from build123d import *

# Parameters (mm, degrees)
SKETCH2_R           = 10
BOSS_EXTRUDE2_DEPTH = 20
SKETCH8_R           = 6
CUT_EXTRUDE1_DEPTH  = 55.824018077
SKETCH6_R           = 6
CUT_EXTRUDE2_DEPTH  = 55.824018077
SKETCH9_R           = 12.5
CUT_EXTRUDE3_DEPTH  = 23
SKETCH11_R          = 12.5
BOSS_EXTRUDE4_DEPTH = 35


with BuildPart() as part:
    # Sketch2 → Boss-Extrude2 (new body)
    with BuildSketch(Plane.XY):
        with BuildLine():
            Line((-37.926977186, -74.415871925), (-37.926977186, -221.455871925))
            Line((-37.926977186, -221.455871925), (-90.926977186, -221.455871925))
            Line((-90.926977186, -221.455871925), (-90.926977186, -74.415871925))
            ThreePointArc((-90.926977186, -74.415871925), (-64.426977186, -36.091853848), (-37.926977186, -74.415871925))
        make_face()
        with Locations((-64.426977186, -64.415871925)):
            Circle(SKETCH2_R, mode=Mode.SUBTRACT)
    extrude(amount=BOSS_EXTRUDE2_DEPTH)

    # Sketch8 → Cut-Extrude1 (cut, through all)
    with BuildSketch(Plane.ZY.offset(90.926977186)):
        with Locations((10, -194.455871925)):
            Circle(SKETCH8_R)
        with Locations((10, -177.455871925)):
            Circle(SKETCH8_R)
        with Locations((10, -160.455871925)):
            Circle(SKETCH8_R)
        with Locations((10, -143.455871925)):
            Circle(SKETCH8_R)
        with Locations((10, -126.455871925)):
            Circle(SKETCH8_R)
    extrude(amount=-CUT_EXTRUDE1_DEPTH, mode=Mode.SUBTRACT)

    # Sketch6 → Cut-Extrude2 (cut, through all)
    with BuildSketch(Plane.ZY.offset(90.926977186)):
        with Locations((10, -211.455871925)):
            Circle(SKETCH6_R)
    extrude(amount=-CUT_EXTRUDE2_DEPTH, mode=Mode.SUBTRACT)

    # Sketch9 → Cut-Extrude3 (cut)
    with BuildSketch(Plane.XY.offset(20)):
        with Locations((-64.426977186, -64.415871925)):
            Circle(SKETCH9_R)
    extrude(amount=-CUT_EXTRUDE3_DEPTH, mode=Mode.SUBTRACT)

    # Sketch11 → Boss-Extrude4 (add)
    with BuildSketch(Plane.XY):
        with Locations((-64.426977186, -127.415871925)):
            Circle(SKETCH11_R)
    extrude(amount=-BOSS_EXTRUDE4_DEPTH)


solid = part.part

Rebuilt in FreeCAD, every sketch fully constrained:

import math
import FreeCAD as App
import Part
import Sketcher
from FreeCAD import Vector
Q = App.Units.Quantity

doc = App.newDocument("Part")
body = doc.addObject("PartDesign::Body", "Body")

sketch1 = body.newObject("Sketcher::SketchObject", "Sketch")
sketch1.AttachmentSupport = (doc.getObject("XY_Plane"), [""])
sketch1.MapMode = "FlatFace"
sketch1.addGeometry([
    Part.LineSegment(Vector(-37.926977, -221.455872, 0), Vector(-37.926977, -74.415872, 0)),
    Part.ArcOfCircle(Part.Circle(Vector(-64.426977, -64.415872, 0), Vector(0, 0, 1), 28.324018), math.radians(-20.674425), math.radians(200.674425)),
    Part.LineSegment(Vector(-90.926977, -74.415872, 0), Vector(-90.926977, -221.455872, 0)),
    Part.LineSegment(Vector(-90.926977, -221.455872, 0), Vector(-37.926977, -221.455872, 0)),
    Part.Circle(Vector(-64.426977, -64.415872, 0), Vector(0, 0, 1), 10),
], False)
sketch1.addConstraint([
    Sketcher.Constraint("Coincident", 0, 2, 1, 1),
    Sketcher.Constraint("Coincident", 1, 2, 2, 1),
    Sketcher.Constraint("Coincident", 2, 2, 3, 1),
    Sketcher.Constraint("Coincident", 3, 2, 0, 1),
    Sketcher.Constraint("Vertical", 0),
    Sketcher.Constraint("Vertical", 2),
    Sketcher.Constraint("Horizontal", 3),
    Sketcher.Constraint("Coincident", 4, 3, 1, 3),
    Sketcher.Constraint("Horizontal", 0, 2, 1, 2),
    Sketcher.Constraint("Diameter", 4, Q("20 mm")),
    Sketcher.Constraint("DistanceX", 3, 1, 3, 2, Q("53 mm")),
    Sketcher.Constraint("DistanceY", 0, 2, 1, 3, Q("10 mm")),
    Sketcher.Constraint("DistanceY", 0, 1, 0, 2, Q("147.04 mm")),
    Sketcher.Constraint("DistanceY", 1, 3, -1, 1, Q("64.415872 mm")),
    Sketcher.Constraint("DistanceX", 1, 3, -1, 1, Q("64.426977 mm")),
])
pad1 = body.newObject("PartDesign::Pad", "Pad")
pad1.Profile = sketch1
pad1.Length = 20

sketch2 = body.newObject("Sketcher::SketchObject", "Sketch001")
sketch2.AttachmentSupport = (doc.getObject("YZ_Plane"), [""])
sketch2.MapMode = "FlatFace"
sketch2.AttachmentOffset = App.Placement(Vector(0, 0, -90.926977), App.Rotation())
sketch2.addGeometry([
    Part.Circle(Vector(-194.455872, 10, 0), Vector(0, 0, 1), 6),
    Part.Circle(Vector(-177.455872, 10, 0), Vector(0, 0, 1), 6),
    Part.Circle(Vector(-160.455872, 10, 0), Vector(0, 0, 1), 6),
    Part.Circle(Vector(-143.455872, 10, 0), Vector(0, 0, 1), 6),
    Part.Circle(Vector(-126.455872, 10, 0), Vector(0, 0, 1), 6),
], False)
sketch2.addConstraint([
    Sketcher.Constraint("Equal", 0, 1),
    Sketcher.Constraint("Equal", 1, 2),
    Sketcher.Constraint("Equal", 2, 3),
    Sketcher.Constraint("Equal", 3, 4),
    Sketcher.Constraint("Horizontal", 0, 3, 1, 3),
    Sketcher.Constraint("Horizontal", 1, 3, 2, 3),
    Sketcher.Constraint("Horizontal", 2, 3, 3, 3),
    Sketcher.Constraint("Horizontal", 3, 3, 4, 3),
    Sketcher.Constraint("Diameter", 0, Q("12 mm")),
    Sketcher.Constraint("DistanceY", -1, 1, 0, 3, Q("10 mm")),
    Sketcher.Constraint("DistanceX", 0, 3, 1, 3, Q("17 mm")),
    Sketcher.Constraint("DistanceX", 1, 3, 2, 3, Q("17 mm")),
    Sketcher.Constraint("DistanceX", 2, 3, 3, 3, Q("17 mm")),
    Sketcher.Constraint("DistanceX", 3, 3, 4, 3, Q("17 mm")),
    Sketcher.Constraint("DistanceX", 0, 3, -1, 1, Q("194.455872 mm")),
])
pocket1 = body.newObject("PartDesign::Pocket", "Pocket")
pocket1.Profile = sketch2
pocket1.Type = "ThroughAll"
pocket1.Reversed = True

sketch3 = body.newObject("Sketcher::SketchObject", "Sketch002")
sketch3.AttachmentSupport = (doc.getObject("YZ_Plane"), [""])
sketch3.MapMode = "FlatFace"
sketch3.AttachmentOffset = App.Placement(Vector(0, 0, -90.926977), App.Rotation())
sketch3.addGeometry(Part.Circle(Vector(-211.455872, 10, 0), Vector(0, 0, 1), 6), False)
sketch3.addConstraint([
    Sketcher.Constraint("Diameter", 0, Q("12 mm")),
    Sketcher.Constraint("DistanceY", -1, 1, 0, 3, Q("10 mm")),
    Sketcher.Constraint("DistanceX", 0, 3, -1, 1, Q("211.455872 mm")),
])
pocket2 = body.newObject("PartDesign::Pocket", "Pocket001")
pocket2.Profile = sketch3
pocket2.Type = "ThroughAll"
pocket2.Reversed = True

sketch4 = body.newObject("Sketcher::SketchObject", "Sketch003")
sketch4.AttachmentSupport = (doc.getObject("XY_Plane"), [""])
sketch4.MapMode = "FlatFace"
sketch4.AttachmentOffset = App.Placement(Vector(0, 0, 20), App.Rotation())
sketch4.addGeometry(Part.Circle(Vector(-64.426977, -64.415872, 0), Vector(0, 0, 1), 12.5), False)
sketch4.addConstraint([
    Sketcher.Constraint("Diameter", 0, Q("25 mm")),
    Sketcher.Constraint("DistanceY", 0, 3, -1, 1, Q("64.415872 mm")),
    Sketcher.Constraint("DistanceX", 0, 3, -1, 1, Q("64.426977 mm")),
])
pocket3 = body.newObject("PartDesign::Pocket", "Pocket002")
pocket3.Profile = sketch4
pocket3.Length = 23

sketch5 = body.newObject("Sketcher::SketchObject", "Sketch004")
sketch5.AttachmentSupport = (doc.getObject("XY_Plane"), [""])
sketch5.MapMode = "FlatFace"
sketch5.addGeometry(Part.Circle(Vector(-64.426977, -127.415872, 0), Vector(0, 0, 1), 12.5), False)
sketch5.addConstraint([
    Sketcher.Constraint("Diameter", 0, Q("25 mm")),
    Sketcher.Constraint("DistanceY", 0, 3, -1, 1, Q("127.415872 mm")),
    Sketcher.Constraint("DistanceX", 0, 3, -1, 1, Q("64.426977 mm")),
])
pad2 = body.newObject("PartDesign::Pad", "Pad001")
pad2.Profile = sketch5
pad2.Length = 35
pad2.Reversed = True

doc.recompute()
